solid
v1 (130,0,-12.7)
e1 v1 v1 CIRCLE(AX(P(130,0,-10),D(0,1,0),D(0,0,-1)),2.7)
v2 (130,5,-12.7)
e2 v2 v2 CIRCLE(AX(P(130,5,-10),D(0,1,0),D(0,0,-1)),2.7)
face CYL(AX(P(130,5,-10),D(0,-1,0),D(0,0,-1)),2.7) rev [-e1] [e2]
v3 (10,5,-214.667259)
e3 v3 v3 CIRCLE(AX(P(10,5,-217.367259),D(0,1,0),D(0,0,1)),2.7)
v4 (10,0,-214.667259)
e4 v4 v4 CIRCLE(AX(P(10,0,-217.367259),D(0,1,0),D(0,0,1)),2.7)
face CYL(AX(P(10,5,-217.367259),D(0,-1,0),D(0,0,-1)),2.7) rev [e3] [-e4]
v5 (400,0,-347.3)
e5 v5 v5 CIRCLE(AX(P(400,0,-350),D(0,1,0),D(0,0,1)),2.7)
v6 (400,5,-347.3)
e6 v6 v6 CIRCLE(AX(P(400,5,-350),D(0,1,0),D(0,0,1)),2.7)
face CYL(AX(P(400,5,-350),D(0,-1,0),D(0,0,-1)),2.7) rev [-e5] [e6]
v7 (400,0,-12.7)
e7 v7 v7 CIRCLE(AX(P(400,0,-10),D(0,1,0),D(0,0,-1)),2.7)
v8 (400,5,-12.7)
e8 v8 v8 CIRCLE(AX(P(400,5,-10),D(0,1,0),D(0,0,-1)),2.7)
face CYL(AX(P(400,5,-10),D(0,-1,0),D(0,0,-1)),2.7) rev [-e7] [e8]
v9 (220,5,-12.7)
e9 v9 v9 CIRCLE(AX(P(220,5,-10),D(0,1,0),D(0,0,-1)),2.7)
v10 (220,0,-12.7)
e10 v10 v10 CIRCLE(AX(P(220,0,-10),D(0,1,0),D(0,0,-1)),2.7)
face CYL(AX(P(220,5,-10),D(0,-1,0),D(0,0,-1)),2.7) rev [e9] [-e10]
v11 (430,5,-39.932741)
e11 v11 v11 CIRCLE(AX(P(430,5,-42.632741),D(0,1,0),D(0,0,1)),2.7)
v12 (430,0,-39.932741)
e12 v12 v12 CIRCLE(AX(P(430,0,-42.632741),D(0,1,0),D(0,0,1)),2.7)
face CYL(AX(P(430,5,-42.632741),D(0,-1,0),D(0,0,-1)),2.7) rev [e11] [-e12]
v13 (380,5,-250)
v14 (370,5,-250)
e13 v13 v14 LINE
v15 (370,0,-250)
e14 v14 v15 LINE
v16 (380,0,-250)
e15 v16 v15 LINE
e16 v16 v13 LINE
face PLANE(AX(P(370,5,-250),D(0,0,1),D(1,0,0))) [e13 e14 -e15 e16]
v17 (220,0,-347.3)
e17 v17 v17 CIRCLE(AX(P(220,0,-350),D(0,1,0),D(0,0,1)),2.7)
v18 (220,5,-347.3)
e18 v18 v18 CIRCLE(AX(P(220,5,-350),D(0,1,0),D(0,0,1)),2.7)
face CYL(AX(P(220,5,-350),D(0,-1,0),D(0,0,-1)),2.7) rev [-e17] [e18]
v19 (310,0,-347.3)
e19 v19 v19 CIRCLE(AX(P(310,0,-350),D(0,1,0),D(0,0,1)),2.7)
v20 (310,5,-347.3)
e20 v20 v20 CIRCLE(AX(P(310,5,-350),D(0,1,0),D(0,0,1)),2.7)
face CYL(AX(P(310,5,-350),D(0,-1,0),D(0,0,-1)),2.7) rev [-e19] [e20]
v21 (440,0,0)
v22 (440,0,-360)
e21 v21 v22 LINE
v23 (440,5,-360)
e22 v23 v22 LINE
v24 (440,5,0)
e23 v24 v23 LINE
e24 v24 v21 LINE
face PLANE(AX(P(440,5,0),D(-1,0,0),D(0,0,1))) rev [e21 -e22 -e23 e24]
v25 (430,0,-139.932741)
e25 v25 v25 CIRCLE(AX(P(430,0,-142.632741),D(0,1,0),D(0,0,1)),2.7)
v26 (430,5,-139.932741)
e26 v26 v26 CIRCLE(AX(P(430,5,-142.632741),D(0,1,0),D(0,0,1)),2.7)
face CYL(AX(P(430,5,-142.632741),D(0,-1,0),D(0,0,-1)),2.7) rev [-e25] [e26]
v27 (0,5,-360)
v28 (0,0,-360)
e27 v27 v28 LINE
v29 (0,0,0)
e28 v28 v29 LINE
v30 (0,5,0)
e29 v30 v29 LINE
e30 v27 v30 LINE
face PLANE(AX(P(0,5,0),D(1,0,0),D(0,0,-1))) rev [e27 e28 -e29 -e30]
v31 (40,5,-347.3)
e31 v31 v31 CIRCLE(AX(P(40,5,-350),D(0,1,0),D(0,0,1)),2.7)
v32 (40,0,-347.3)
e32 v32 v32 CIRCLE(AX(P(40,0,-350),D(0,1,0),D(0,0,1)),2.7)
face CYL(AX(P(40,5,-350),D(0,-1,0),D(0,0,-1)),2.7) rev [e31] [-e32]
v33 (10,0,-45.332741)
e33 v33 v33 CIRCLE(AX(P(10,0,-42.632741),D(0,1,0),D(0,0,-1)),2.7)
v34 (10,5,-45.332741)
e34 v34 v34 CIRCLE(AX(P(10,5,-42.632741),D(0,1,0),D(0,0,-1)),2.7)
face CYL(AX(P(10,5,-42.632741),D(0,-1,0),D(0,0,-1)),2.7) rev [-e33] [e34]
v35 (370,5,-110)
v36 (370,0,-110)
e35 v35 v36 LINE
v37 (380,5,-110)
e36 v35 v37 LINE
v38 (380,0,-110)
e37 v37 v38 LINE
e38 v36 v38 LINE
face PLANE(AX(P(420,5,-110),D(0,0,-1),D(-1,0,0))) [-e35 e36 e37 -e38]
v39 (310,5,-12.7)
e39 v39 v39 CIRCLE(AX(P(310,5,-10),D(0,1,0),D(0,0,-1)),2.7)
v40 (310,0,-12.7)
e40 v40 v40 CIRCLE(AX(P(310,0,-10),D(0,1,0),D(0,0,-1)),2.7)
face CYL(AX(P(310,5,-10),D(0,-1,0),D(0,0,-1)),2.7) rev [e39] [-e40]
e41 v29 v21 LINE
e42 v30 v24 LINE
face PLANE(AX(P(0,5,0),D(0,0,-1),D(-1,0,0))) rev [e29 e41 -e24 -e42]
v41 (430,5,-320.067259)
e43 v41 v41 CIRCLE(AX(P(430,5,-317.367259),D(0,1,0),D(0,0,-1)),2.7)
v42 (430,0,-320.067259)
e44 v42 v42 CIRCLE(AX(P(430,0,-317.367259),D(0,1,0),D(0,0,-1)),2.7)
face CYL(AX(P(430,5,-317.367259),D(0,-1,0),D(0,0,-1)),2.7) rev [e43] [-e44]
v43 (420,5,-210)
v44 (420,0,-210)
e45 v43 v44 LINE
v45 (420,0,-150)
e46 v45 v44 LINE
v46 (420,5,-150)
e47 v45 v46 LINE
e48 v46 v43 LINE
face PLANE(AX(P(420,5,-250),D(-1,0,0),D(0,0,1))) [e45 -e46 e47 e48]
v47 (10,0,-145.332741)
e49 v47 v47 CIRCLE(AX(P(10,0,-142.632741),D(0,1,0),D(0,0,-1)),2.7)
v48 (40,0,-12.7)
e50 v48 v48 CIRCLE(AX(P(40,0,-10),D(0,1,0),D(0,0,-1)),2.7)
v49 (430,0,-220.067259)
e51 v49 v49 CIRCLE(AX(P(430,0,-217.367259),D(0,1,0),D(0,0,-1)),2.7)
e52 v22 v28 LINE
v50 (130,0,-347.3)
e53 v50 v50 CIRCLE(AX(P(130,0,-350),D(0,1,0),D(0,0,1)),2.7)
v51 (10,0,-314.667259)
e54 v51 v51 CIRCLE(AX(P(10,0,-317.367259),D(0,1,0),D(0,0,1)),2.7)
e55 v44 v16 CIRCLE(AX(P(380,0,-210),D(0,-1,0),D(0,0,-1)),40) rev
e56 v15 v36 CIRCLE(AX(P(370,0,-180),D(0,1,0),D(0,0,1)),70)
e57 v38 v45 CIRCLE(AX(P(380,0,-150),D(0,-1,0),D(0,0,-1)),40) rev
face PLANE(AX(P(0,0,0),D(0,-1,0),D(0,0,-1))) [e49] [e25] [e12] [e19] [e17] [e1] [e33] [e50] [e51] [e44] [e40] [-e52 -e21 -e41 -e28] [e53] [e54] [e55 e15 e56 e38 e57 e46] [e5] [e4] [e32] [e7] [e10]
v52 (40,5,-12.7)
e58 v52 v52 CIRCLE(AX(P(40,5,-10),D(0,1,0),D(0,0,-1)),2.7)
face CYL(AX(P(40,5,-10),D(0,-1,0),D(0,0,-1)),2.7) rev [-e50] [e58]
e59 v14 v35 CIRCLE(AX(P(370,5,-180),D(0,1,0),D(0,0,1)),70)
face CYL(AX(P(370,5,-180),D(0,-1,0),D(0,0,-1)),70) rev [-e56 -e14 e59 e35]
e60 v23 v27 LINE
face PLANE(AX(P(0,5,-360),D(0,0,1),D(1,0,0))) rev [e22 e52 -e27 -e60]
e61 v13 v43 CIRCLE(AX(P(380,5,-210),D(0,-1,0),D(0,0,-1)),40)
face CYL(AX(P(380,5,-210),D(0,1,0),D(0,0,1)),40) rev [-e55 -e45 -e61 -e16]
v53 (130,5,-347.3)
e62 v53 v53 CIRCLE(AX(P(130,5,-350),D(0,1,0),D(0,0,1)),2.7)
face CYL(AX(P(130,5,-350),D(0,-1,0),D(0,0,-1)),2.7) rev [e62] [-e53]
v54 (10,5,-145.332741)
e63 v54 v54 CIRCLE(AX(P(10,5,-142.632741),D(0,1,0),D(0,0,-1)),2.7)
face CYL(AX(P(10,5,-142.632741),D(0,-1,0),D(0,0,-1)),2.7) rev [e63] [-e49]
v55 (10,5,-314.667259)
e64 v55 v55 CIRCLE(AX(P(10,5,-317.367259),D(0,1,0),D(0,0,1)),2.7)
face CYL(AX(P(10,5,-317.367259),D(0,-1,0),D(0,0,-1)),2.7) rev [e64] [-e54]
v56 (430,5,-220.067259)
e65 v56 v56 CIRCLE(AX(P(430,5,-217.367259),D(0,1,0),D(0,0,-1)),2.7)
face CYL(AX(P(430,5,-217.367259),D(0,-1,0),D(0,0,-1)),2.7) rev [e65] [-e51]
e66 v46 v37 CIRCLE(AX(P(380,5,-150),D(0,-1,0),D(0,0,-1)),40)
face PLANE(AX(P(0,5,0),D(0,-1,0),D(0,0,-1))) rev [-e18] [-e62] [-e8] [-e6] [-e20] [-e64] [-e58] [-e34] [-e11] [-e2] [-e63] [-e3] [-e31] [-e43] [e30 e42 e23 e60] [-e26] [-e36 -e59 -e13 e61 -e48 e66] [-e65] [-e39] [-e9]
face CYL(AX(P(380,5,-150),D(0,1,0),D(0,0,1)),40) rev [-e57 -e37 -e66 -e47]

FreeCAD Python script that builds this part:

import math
import FreeCAD as App
import Part
import Sketcher
Q = App.Units.Quantity


def edges_at(feature, points):
    """Names of the edges that pass closest to the given points."""
    edges = feature.Shape.Edges
    near = lambda p: min(range(len(edges)), key=lambda i: edges[i].distToShape(Part.Vertex(*p))[0])
    return sorted({f"Edge{near(p) + 1}" for p in points})

doc = App.newDocument("Part")
body = doc.addObject("PartDesign::Body", "Body")

sketch1 = doc.addObject("Sketcher::SketchObject", "Sketch")
body.addObject(sketch1)
sketch1.AttachmentSupport = (doc.XZ_Plane, [""])
sketch1.MapMode = "FlatFace"
sketch1.addGeometry([
    Part.LineSegment(App.Vector(0, -360, 0), App.Vector(0, 0, 0)),
    Part.LineSegment(App.Vector(0, 0, 0), App.Vector(440, 0, 0)),
    Part.LineSegment(App.Vector(440, 0, 0), App.Vector(440, -360, 0)),
    Part.LineSegment(App.Vector(440, -360, 0), App.Vector(0, -360, 0)),
    Part.Circle(App.Vector(40, -10, 0), App.Vector(0, 0, 1), 2.7),
    Part.Circle(App.Vector(10, -42.6, 0), App.Vector(0, 0, 1), 2.7),
    Part.Circle(App.Vector(130, -10, 0), App.Vector(0, 0, 1), 2.7),
    Part.Circle(App.Vector(10, -142.6, 0), App.Vector(0, 0, 1), 2.7),
    Part.Circle(App.Vector(220, -10, 0), App.Vector(0, 0, 1), 2.7),
    Part.Circle(App.Vector(310, -10, 0), App.Vector(0, 0, 1), 2.7),
    Part.Circle(App.Vector(400, -10, 0), App.Vector(0, 0, 1), 2.7),
    Part.Circle(App.Vector(430, -42.6, 0), App.Vector(0, 0, 1), 2.7),
    Part.Circle(App.Vector(430, -142.6, 0), App.Vector(0, 0, 1), 2.7),
    Part.Circle(App.Vector(10, -217.4, 0), App.Vector(0, 0, 1), 2.7),
    Part.Circle(App.Vector(10, -317.4, 0), App.Vector(0, 0, 1), 2.7),
    Part.Circle(App.Vector(40, -350, 0), App.Vector(0, 0, 1), 2.7),
    Part.Circle(App.Vector(130, -350, 0), App.Vector(0, 0, 1), 2.7),
    Part.ArcOfCircle(Part.Circle(App.Vector(370, -180, 0), App.Vector(0, 0, 1), 70), math.radians(90), math.radians(270)),
    Part.LineSegment(App.Vector(370, -250, 0), App.Vector(420, -250, 0)),
    Part.LineSegment(App.Vector(420, -250, 0), App.Vector(420, -110, 0)),
    Part.LineSegment(App.Vector(420, -110, 0), App.Vector(370, -110, 0)),
    Part.Circle(App.Vector(430, -217.4, 0), App.Vector(0, 0, 1), 2.7),
    Part.Circle(App.Vector(220, -350, 0), App.Vector(0, 0, 1), 2.7),
    Part.Circle(App.Vector(310, -350, 0), App.Vector(0, 0, 1), 2.7),
    Part.Circle(App.Vector(430, -317.4, 0), App.Vector(0, 0, 1), 2.7),
    Part.Circle(App.Vector(400, -350, 0), App.Vector(0, 0, 1), 2.7),
], False)
sketch1.addConstraint([
    Sketcher.Constraint("Coincident", 0, 2, 1, 1),
    Sketcher.Constraint("Coincident", 1, 2, 2, 1),
    Sketcher.Constraint("Coincident", 2, 2, 3, 1),
    Sketcher.Constraint("Coincident", 3, 2, 0, 1),
    Sketcher.Constraint("Tangent", 17, 2, 18, 1),
    Sketcher.Constraint("Coincident", 18, 2, 19, 1),
    Sketcher.Constraint("Coincident", 19, 2, 20, 1),
    Sketcher.Constraint("Tangent", 20, 2, 17, 1),
    Sketcher.Constraint("Vertical", 0),
    Sketcher.Constraint("Horizontal", 1),
    Sketcher.Constraint("Vertical", 2),
    Sketcher.Constraint("Horizontal", 3),
    Sketcher.Constraint("Horizontal", 18),
    Sketcher.Constraint("Vertical", 19),
    Sketcher.Constraint("Horizontal", 20),
    Sketcher.Constraint("Coincident", 0, 2, -1, 1),
    Sketcher.Constraint("Equal", 4, 5),
    Sketcher.Constraint("Equal", 5, 6),
    Sketcher.Constraint("Equal", 6, 7),
    Sketcher.Constraint("Equal", 7, 8),
    Sketcher.Constraint("Equal", 8, 9),
    Sketcher.Constraint("Equal", 9, 10),
    Sketcher.Constraint("Equal", 10, 11),
    Sketcher.Constraint("Equal", 11, 12),
    Sketcher.Constraint("Equal", 12, 13),
    Sketcher.Constraint("Equal", 13, 14),
    Sketcher.Constraint("Equal", 14, 15),
    Sketcher.Constraint("Equal", 15, 16),
    Sketcher.Constraint("Equal", 16, 21),
    Sketcher.Constraint("Equal", 21, 22),
    Sketcher.Constraint("Equal", 22, 23),
    Sketcher.Constraint("Equal", 23, 24),
    Sketcher.Constraint("Equal", 24, 25),
    Sketcher.Constraint("Horizontal", 4, 3, 6, 3),
    Sketcher.Constraint("Horizontal", 6, 3, 8, 3),
    Sketcher.Constraint("Horizontal", 8, 3, 9, 3),
    Sketcher.Constraint("Horizontal", 9, 3, 10, 3),
    Sketcher.Constraint("Horizontal", 5, 3, 11, 3),
    Sketcher.Constraint("Horizontal", 7, 3, 12, 3),
    Sketcher.Constraint("Horizontal", 15, 3, 16, 3),
    Sketcher.Constraint("Horizontal", 13, 3, 21, 3),
    Sketcher.Constraint("Horizontal", 16, 3, 22, 3),
    Sketcher.Constraint("Horizontal", 22, 3, 23, 3),
    Sketcher.Constraint("Horizontal", 14, 3, 24, 3),
    Sketcher.Constraint("Horizontal", 23, 3, 25, 3),
    Sketcher.Constraint("Vertical", 5, 3, 7, 3),
    Sketcher.Constraint("Vertical", 11, 3, 12, 3),
    Sketcher.Constraint("Vertical", 7, 3, 13, 3),
    Sketcher.Constraint("Vertical", 13, 3, 14, 3),
    Sketcher.Constraint("Vertical", 4, 3, 15, 3),
    Sketcher.Constraint("Vertical", 6, 3, 16, 3),
    Sketcher.Constraint("Vertical", 12, 3, 21, 3),
    Sketcher.Constraint("Vertical", 8, 3, 22, 3),
    Sketcher.Constraint("Vertical", 9, 3, 23, 3),
    Sketcher.Constraint("Vertical", 21, 3, 24, 3),
    Sketcher.Constraint("Vertical", 10, 3, 25, 3),
    Sketcher.Constraint("Radius", 17, Q("70 mm")),
    Sketcher.Constraint("Diameter", 4, Q("5.4 mm")),
    Sketcher.Constraint("DistanceX", 1, 1, 1, 2, Q("440 mm")),
    Sketcher.Constraint("DistanceX", 18, 1, 18, 2, Q("50 mm")),
    Sketcher.Constraint("DistanceY", 0, 1, 0, 2, Q("360 mm")),
    Sketcher.Constraint("DistanceX", -1, 1, 4, 3, Q("40 mm")),
    Sketcher.Constraint("DistanceY", 4, 3, -1, 1, Q("10 mm")),
    Sketcher.Constraint("DistanceX", -1, 1, 5, 3, Q("10 mm")),
    Sketcher.Constraint("DistanceX", -1, 1, 6, 3, Q("130 mm")),
    Sketcher.Constraint("DistanceX", -1, 1, 8, 3, Q("220 mm")),
    Sketcher.Constraint("DistanceX", -1, 1, 9, 3, Q("310 mm")),
    Sketcher.Constraint("DistanceX", -1, 1, 10, 3, Q("400 mm")),
    Sketcher.Constraint("DistanceX", -1, 1, 11, 3, Q("430 mm")),
    Sketcher.Constraint("DistanceY", 15, 3, -1, 1, Q("350 mm")),
    Sketcher.Constraint("DistanceX", -1, 1, 17, 3, Q("370 mm")),
    Sketcher.Constraint("DistanceY", 17, 3, -1, 1, Q("180 mm")),
    Sketcher.Constraint("DistanceY", 7, 3, 5, 3, Q("100 mm")),
    Sketcher.Constraint("DistanceY", 14, 3, 13, 3, Q("100 mm")),
    Sketcher.Constraint("DistanceY", 5, 3, -1, 1, Q("42.632741 mm")),
    Sketcher.Constraint("DistanceY", 13, 3, -1, 1, Q("217.367259 mm")),
])
pad1 = doc.addObject("PartDesign::Pad", "Pad")
body.addObject(pad1)
pad1.Profile = sketch1
pad1.Length = 5
pad1.Reversed = True
doc.recompute()

fillet = doc.addObject("PartDesign::Fillet", "Fillet")
body.addObject(fillet)
fillet.Base = (pad1, edges_at(pad1, [(420, 2.5, -110), (420, 2.5, -250)]))
fillet.Radius = 40

doc.recompute()
